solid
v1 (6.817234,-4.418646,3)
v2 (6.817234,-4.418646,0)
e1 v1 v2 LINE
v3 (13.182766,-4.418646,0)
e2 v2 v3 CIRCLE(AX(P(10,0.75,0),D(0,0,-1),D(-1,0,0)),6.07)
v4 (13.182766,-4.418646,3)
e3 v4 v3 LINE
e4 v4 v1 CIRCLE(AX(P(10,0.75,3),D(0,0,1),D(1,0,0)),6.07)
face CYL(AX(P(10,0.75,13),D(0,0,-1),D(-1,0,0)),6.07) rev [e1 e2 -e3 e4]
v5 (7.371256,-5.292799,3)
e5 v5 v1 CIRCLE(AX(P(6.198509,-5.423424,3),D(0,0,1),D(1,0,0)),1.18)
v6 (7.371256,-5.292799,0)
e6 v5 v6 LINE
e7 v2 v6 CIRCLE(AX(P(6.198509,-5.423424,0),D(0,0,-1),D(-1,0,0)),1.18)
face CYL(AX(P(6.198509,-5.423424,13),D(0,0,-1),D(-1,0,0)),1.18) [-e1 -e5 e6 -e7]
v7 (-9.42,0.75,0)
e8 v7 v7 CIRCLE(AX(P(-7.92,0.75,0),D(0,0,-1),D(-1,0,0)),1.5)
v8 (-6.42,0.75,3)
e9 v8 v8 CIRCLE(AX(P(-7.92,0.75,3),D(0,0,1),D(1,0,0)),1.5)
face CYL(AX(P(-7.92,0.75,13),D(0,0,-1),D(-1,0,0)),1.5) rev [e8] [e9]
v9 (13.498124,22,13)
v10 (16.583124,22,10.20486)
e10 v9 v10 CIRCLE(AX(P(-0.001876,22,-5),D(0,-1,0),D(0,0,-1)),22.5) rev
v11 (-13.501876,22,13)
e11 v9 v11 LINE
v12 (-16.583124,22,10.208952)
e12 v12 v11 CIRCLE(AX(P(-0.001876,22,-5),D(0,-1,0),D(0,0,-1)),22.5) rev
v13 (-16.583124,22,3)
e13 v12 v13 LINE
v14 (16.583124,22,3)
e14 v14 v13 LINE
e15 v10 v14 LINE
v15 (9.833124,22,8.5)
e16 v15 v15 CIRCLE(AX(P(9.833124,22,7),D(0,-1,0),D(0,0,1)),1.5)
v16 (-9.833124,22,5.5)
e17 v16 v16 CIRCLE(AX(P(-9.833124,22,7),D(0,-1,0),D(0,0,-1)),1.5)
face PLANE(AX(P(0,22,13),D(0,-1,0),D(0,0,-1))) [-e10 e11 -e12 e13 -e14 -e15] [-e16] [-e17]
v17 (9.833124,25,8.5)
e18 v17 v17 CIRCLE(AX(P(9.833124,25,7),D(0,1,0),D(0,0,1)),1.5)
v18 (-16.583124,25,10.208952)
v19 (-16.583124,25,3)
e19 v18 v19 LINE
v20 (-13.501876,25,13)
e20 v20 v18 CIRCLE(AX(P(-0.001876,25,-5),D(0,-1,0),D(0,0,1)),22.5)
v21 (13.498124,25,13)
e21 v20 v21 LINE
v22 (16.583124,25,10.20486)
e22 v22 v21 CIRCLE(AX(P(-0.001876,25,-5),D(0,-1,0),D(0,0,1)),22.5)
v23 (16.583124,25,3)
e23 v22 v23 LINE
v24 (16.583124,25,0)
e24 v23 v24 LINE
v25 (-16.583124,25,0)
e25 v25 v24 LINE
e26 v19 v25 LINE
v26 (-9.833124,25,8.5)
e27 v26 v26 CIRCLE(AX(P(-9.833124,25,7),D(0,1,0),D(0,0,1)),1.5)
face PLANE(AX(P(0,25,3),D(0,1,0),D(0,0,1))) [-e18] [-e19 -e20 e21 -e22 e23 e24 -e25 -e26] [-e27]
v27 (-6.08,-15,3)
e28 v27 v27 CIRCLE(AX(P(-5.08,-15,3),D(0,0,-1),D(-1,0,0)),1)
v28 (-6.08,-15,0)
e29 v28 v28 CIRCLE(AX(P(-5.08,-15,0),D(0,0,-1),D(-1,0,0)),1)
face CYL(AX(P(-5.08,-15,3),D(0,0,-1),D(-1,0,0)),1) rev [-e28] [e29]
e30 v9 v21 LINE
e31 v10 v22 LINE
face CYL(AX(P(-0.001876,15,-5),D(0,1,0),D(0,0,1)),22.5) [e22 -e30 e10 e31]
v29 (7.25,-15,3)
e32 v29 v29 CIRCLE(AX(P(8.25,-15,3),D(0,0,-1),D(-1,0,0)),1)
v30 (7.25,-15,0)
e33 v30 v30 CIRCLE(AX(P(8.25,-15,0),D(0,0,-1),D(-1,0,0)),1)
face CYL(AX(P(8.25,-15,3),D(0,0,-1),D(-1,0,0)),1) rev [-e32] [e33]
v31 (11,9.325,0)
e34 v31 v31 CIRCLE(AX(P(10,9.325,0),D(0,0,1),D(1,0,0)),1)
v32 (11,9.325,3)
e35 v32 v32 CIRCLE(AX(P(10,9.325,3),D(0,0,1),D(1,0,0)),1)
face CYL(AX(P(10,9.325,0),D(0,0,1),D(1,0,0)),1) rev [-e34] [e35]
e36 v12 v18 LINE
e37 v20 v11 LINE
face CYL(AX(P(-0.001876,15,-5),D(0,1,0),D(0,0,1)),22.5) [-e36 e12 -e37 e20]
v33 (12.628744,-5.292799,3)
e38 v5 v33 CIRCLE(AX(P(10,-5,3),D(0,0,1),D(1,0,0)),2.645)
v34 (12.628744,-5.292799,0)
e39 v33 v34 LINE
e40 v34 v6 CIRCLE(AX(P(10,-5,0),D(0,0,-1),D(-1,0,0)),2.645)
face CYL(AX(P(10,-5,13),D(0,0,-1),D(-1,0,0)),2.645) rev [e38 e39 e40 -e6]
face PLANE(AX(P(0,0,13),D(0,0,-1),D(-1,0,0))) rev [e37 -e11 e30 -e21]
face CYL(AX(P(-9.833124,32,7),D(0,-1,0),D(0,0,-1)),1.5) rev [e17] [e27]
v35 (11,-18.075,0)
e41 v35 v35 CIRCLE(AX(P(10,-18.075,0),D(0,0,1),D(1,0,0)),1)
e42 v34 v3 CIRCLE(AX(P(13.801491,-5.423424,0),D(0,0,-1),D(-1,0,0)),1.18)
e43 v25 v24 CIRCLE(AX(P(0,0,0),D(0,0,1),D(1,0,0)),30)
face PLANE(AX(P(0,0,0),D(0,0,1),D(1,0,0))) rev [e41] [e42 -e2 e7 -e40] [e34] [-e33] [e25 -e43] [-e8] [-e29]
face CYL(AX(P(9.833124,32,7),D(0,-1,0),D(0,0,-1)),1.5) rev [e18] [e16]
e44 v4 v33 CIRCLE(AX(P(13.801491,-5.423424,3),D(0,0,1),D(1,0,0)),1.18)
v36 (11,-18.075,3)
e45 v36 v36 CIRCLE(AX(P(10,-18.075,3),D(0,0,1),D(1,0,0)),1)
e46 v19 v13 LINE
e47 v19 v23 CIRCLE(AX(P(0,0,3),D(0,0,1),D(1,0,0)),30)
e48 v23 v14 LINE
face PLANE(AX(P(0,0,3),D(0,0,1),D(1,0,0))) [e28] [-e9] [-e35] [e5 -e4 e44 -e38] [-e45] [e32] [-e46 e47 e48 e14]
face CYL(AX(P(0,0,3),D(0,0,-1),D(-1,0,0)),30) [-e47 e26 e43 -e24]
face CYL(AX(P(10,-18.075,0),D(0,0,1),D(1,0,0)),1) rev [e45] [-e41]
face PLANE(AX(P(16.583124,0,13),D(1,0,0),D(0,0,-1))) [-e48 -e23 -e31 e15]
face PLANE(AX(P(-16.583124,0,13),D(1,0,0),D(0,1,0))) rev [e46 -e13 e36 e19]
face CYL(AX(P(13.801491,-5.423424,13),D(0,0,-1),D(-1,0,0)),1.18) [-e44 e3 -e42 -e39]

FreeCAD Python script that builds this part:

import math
import FreeCAD as App
import Part
import Sketcher

V = App.Vector


def add_polygon(sketch, points):
    """Adds a closed chain of lines whose ends are joined by coincident constraints."""
    first, n = sketch.GeometryCount, len(points)
    for a, b in zip(points, points[1:] + points[:1]):
        sketch.addGeometry(Part.LineSegment(App.Vector(*a, 0), App.Vector(*b, 0)), False)
    for i in range(n):
        sketch.addConstraint(Sketcher.Constraint("Coincident", first + i, 2, first + (i + 1) % n, 1))

doc = App.newDocument("Part")
body = doc.addObject("PartDesign::Body", "Body")

# Sketch on XY plane
sketch1 = body.newObject("Sketcher::SketchObject", "Sketch")
sketch1.AttachmentSupport = (doc.getObject("XY_Plane"), [""])
sketch1.MapMode = "FlatFace"
sketch1.addGeometry([
    Part.LineSegment(V(17, 25, 0), V(-17, 25, 0)),
    Part.ArcOfCircle(Part.Circle(V(0, 0, 0), V(0, 0, 1), 30), math.radians(124), math.radians(360)),
    Part.ArcOfCircle(Part.Circle(V(0, 0, 0), V(0, 0, 1), 30), math.radians(0), math.radians(56)),
], False)
sketch1.addConstraint([
    Sketcher.Constraint("Coincident", 0, 2, 1, 1),
    Sketcher.Constraint("Tangent", 1, 2, 2, 1),
    Sketcher.Constraint("Coincident", 2, 2, 0, 1),
    Sketcher.Constraint("Horizontal", 0),
    Sketcher.Constraint("Coincident", 1, 3, -1, 1),
    Sketcher.Constraint("Equal", 1, 2),
    Sketcher.Constraint("PointOnObject", 1, 2, -1),
    Sketcher.Constraint("Radius", 1, 30.0),
    Sketcher.Constraint("DistanceY", -1, 1, 0, 2, 25.0),
])
pad1 = body.newObject("PartDesign::Pad", "Pad")
pad1.Profile = sketch1
pad1.Length = 3

# Sketch on XY plane
sketch2 = body.newObject("Sketcher::SketchObject", "Sketch001")
sketch2.AttachmentSupport = (doc.getObject("XY_Plane"), [""])
sketch2.MapMode = "FlatFace"
sketch2.AttachmentOffset = App.Placement(V(0, 0, 3), App.Rotation())
add_polygon(sketch2, [(16.6, 25), (16.6, 22), (-16.6, 22), (-16.6, 25)])  # lines 0-3
sketch2.addConstraint([
    Sketcher.Constraint("Vertical", 0),
    Sketcher.Constraint("Horizontal", 1),
    Sketcher.Constraint("Vertical", 2),
    Sketcher.Constraint("Horizontal", 3),
    Sketcher.Constraint("DistanceY", 0, 2, 0, 1, 3.0),
    Sketcher.Constraint("DistanceY", -1, 1, 0, 2, 22.0),
    Sketcher.Constraint("DistanceX", 1, 2, 1, 1, 33.166248),
    Sketcher.Constraint("DistanceX", -1, 1, 0, 2, 16.583124),
])
pad2 = body.newObject("PartDesign::Pad", "Pad001")
pad2.Profile = sketch2
pad2.Length = 10

# Sketch on XZ plane
sketch3 = body.newObject("Sketcher::SketchObject", "Sketch002")
sketch3.AttachmentSupport = (doc.getObject("XZ_Plane"), [""])
sketch3.MapMode = "FlatFace"
sketch3.AttachmentOffset = App.Placement(V(0, 0, -25), App.Rotation())
sketch3.addGeometry([
    Part.LineSegment(V(13.5, 13, 0), V(16.6, 13, 0)),  # 0
    Part.LineSegment(V(16.6, 13, 0), V(16.6, 10.2, 0)),  # 1
    Part.ArcOfCircle(Part.Circle(V(0, -5, 0), V(0, 0, 1), 22.5), math.radians(42.51), math.radians(53.13)),  # 2
    Part.LineSegment(V(-16.6, 10.2, 0), V(-16.6, 13, 0)),  # 3
    Part.LineSegment(V(-16.6, 13, 0), V(-13.5, 13, 0)),  # 4
    Part.ArcOfCircle(Part.Circle(V(0, -5, 0), V(0, 0, 1), 22.5), math.radians(126.87), math.radians(137.47)),  # 5
], False)
sketch3.addConstraint([
    Sketcher.Constraint("Coincident", 0, 2, 1, 1),
    Sketcher.Constraint("Coincident", 1, 2, 2, 1),
    Sketcher.Constraint("Coincident", 2, 2, 0, 1),
    Sketcher.Constraint("Coincident", 3, 2, 4, 1),
    Sketcher.Constraint("Coincident", 4, 2, 5, 1),
    Sketcher.Constraint("Coincident", 5, 2, 3, 1),
    Sketcher.Constraint("Horizontal", 0),
    Sketcher.Constraint("Vertical", 1),
    Sketcher.Constraint("Vertical", 3),
    Sketcher.Constraint("Horizontal", 4),
    Sketcher.Constraint("Coincident", 5, 3, 2, 3),
    Sketcher.Constraint("Equal", 2, 5),
    Sketcher.Constraint("Symmetric", 0, 2, 3, 2, -2),
    Sketcher.Constraint("Radius", 2, 22.5),
    Sketcher.Constraint("DistanceY", 2, 3, -1, 1, 5.0),
    Sketcher.Constraint("DistanceY", -1, 1, 0, 2, 13.0),
    Sketcher.Constraint("DistanceX", 0, 1, 0, 2, 3.085),
    Sketcher.Constraint("DistanceY", 3, 1, 3, 2, 2.791048),
])
pocket1 = body.newObject("PartDesign::Pocket", "Pocket")
pocket1.Profile = sketch3
pocket1.Length = 10
pocket1.Reversed = True

# Sketch on XZ plane
sketch4 = body.newObject("Sketcher::SketchObject", "Sketch003")
sketch4.AttachmentSupport = (doc.getObject("XZ_Plane"), [""])
sketch4.MapMode = "FlatFace"
sketch4.AttachmentOffset = App.Placement(V(0, 0, -22), App.Rotation())
sketch4.addGeometry([
    Part.Circle(V(-9.8, 7, 0), V(0, 0, 1), 1.5),
    Part.Circle(V(9.8, 7, 0), V(0, 0, 1), 1.5),
], False)
sketch4.addConstraint([
    Sketcher.Constraint("Equal", 0, 1),
    Sketcher.Constraint("Symmetric", 0, 3, 1, 3, -2),
    Sketcher.Constraint("Diameter", 0, 3.0),
    Sketcher.Constraint("DistanceY", -1, 1, 0, 3, 7.0),
    Sketcher.Constraint("DistanceX", 0, 3, -1, 1, 9.833124),
])
pocket2 = body.newObject("PartDesign::Pocket", "Pocket001")
pocket2.Profile = sketch4
pocket2.Length = 10

# Sketch on XY plane
sketch5 = body.newObject("Sketcher::SketchObject", "Sketch004")
sketch5.AttachmentSupport = (doc.getObject("XY_Plane"), [""])
sketch5.MapMode = "FlatFace"
sketch5.AttachmentOffset = App.Placement(V(0, 0, 3), App.Rotation())
sketch5.addGeometry([
    Part.Circle(V(10, -18.1, 0), V(0, 0, 1), 1),
    Part.Circle(V(10, 9.3, 0), V(0, 0, 1), 1),
], False)
sketch5.addConstraint([
    Sketcher.Constraint("Equal", 0, 1),
    Sketcher.Constraint("Vertical", 0, 3, 1, 3),
    Sketcher.Constraint("Diameter", 0, 2.0),
    Sketcher.Constraint("DistanceX", -1, 1, 0, 3, 10.0),
    Sketcher.Constraint("DistanceY", 0, 3, 1, 3, 27.4),
    Sketcher.Constraint("DistanceY", 0, 3, -1, 1, 18.075),
])
pocket3 = body.newObject("PartDesign::Pocket", "Pocket002")
pocket3.Profile = sketch5
pocket3.Type = "ThroughAll"

# Sketch on XY plane
sketch6 = body.newObject("Sketcher::SketchObject", "Sketch005")
sketch6.AttachmentSupport = (doc.getObject("XY_Plane"), [""])
sketch6.MapMode = "FlatFace"
sketch6.addGeometry([
    Part.ArcOfCircle(Part.Circle(V(13.8, -5.4, 0), V(0, 0, 1), 1.2), math.radians(122), math.radians(174)),
    Part.ArcOfCircle(Part.Circle(V(10, -5, 0), V(0, 0, 1), 2.6), math.radians(-174), math.radians(-6)),
    Part.ArcOfCircle(Part.Circle(V(6.2, -5.4, 0), V(0, 0, 1), 1.2), math.radians(6), math.radians(58)),
    Part.ArcOfCircle(Part.Circle(V(10, 0.8, 0), V(0, 0, 1), 6.1), math.radians(-58), math.radians(238)),
], False)
sketch6.addConstraint([
    Sketcher.Constraint("Tangent", 0, 2, 1, 2),
    Sketcher.Constraint("Tangent", 1, 1, 2, 1),
    Sketcher.Constraint("Tangent", 2, 2, 3, 2),
    Sketcher.Constraint("Tangent", 3, 1, 0, 1),
    Sketcher.Constraint("Equal", 0, 2),
    Sketcher.Constraint("Horizontal", 0, 3, 2, 3),
    Sketcher.Constraint("Radius", 0, 1.18),
    Sketcher.Constraint("Radius", 3, 6.07),
    Sketcher.Constraint("DistanceX", -1, 1, 1, 3, 10.0),
    Sketcher.Constraint("DistanceY", 1, 3, -1, 1, 5.0),
    Sketcher.Constraint("Radius", 1, 2.645),
    Sketcher.Constraint("DistanceY", -1, 1, 3, 3, 0.75),
])
pocket4 = body.newObject("PartDesign::Pocket", "Pocket003")
pocket4.Profile = sketch6
pocket4.Type = "ThroughAll"
pocket4.Reversed = True

# Sketch on XY plane
sketch7 = body.newObject("Sketcher::SketchObject", "Sketch006")
sketch7.AttachmentSupport = (doc.getObject("XY_Plane"), [""])
sketch7.MapMode = "FlatFace"
sketch7.addGeometry(Part.Circle(V(-7.9, 0.8, 0), V(0, 0, 1), 1.5), False)
sketch7.addConstraint([
    Sketcher.Constraint("Diameter", 0, 3.0),
    Sketcher.Constraint("DistanceX", 0, 3, -1, 1, 7.92),
    Sketcher.Constraint("DistanceY", -1, 1, 0, 3, 0.75),
])
pocket5 = body.newObject("PartDesign::Pocket", "Pocket004")
pocket5.Profile = sketch7
pocket5.Type = "ThroughAll"
pocket5.Reversed = True

# Sketch on XY plane
sketch8 = body.newObject("Sketcher::SketchObject", "Sketch007")
sketch8.AttachmentSupport = (doc.getObject("XY_Plane"), [""])
sketch8.MapMode = "FlatFace"
sketch8.addGeometry([
    Part.Circle(V(8.2, -15, 0), V(0, 0, 1), 1),
    Part.Circle(V(-5.1, -15, 0), V(0, 0, 1), 1),
], False)
sketch8.addConstraint([
    Sketcher.Constraint("Equal", 0, 1),
    Sketcher.Constraint("Horizontal", 0, 3, 1, 3),
    Sketcher.Constraint("Diameter", 0, 2.0),
    Sketcher.Constraint("DistanceY", 0, 3, -1, 1, 15.0),
    Sketcher.Constraint("DistanceX", -1, 1, 0, 3, 8.25),
    Sketcher.Constraint("DistanceX", 1, 3, -1, 1, 5.08),
])
pocket6 = body.newObject("PartDesign::Pocket", "Pocket005")
pocket6.Profile = sketch8
pocket6.Length = 3
pocket6.Reversed = True

doc.recompute()
